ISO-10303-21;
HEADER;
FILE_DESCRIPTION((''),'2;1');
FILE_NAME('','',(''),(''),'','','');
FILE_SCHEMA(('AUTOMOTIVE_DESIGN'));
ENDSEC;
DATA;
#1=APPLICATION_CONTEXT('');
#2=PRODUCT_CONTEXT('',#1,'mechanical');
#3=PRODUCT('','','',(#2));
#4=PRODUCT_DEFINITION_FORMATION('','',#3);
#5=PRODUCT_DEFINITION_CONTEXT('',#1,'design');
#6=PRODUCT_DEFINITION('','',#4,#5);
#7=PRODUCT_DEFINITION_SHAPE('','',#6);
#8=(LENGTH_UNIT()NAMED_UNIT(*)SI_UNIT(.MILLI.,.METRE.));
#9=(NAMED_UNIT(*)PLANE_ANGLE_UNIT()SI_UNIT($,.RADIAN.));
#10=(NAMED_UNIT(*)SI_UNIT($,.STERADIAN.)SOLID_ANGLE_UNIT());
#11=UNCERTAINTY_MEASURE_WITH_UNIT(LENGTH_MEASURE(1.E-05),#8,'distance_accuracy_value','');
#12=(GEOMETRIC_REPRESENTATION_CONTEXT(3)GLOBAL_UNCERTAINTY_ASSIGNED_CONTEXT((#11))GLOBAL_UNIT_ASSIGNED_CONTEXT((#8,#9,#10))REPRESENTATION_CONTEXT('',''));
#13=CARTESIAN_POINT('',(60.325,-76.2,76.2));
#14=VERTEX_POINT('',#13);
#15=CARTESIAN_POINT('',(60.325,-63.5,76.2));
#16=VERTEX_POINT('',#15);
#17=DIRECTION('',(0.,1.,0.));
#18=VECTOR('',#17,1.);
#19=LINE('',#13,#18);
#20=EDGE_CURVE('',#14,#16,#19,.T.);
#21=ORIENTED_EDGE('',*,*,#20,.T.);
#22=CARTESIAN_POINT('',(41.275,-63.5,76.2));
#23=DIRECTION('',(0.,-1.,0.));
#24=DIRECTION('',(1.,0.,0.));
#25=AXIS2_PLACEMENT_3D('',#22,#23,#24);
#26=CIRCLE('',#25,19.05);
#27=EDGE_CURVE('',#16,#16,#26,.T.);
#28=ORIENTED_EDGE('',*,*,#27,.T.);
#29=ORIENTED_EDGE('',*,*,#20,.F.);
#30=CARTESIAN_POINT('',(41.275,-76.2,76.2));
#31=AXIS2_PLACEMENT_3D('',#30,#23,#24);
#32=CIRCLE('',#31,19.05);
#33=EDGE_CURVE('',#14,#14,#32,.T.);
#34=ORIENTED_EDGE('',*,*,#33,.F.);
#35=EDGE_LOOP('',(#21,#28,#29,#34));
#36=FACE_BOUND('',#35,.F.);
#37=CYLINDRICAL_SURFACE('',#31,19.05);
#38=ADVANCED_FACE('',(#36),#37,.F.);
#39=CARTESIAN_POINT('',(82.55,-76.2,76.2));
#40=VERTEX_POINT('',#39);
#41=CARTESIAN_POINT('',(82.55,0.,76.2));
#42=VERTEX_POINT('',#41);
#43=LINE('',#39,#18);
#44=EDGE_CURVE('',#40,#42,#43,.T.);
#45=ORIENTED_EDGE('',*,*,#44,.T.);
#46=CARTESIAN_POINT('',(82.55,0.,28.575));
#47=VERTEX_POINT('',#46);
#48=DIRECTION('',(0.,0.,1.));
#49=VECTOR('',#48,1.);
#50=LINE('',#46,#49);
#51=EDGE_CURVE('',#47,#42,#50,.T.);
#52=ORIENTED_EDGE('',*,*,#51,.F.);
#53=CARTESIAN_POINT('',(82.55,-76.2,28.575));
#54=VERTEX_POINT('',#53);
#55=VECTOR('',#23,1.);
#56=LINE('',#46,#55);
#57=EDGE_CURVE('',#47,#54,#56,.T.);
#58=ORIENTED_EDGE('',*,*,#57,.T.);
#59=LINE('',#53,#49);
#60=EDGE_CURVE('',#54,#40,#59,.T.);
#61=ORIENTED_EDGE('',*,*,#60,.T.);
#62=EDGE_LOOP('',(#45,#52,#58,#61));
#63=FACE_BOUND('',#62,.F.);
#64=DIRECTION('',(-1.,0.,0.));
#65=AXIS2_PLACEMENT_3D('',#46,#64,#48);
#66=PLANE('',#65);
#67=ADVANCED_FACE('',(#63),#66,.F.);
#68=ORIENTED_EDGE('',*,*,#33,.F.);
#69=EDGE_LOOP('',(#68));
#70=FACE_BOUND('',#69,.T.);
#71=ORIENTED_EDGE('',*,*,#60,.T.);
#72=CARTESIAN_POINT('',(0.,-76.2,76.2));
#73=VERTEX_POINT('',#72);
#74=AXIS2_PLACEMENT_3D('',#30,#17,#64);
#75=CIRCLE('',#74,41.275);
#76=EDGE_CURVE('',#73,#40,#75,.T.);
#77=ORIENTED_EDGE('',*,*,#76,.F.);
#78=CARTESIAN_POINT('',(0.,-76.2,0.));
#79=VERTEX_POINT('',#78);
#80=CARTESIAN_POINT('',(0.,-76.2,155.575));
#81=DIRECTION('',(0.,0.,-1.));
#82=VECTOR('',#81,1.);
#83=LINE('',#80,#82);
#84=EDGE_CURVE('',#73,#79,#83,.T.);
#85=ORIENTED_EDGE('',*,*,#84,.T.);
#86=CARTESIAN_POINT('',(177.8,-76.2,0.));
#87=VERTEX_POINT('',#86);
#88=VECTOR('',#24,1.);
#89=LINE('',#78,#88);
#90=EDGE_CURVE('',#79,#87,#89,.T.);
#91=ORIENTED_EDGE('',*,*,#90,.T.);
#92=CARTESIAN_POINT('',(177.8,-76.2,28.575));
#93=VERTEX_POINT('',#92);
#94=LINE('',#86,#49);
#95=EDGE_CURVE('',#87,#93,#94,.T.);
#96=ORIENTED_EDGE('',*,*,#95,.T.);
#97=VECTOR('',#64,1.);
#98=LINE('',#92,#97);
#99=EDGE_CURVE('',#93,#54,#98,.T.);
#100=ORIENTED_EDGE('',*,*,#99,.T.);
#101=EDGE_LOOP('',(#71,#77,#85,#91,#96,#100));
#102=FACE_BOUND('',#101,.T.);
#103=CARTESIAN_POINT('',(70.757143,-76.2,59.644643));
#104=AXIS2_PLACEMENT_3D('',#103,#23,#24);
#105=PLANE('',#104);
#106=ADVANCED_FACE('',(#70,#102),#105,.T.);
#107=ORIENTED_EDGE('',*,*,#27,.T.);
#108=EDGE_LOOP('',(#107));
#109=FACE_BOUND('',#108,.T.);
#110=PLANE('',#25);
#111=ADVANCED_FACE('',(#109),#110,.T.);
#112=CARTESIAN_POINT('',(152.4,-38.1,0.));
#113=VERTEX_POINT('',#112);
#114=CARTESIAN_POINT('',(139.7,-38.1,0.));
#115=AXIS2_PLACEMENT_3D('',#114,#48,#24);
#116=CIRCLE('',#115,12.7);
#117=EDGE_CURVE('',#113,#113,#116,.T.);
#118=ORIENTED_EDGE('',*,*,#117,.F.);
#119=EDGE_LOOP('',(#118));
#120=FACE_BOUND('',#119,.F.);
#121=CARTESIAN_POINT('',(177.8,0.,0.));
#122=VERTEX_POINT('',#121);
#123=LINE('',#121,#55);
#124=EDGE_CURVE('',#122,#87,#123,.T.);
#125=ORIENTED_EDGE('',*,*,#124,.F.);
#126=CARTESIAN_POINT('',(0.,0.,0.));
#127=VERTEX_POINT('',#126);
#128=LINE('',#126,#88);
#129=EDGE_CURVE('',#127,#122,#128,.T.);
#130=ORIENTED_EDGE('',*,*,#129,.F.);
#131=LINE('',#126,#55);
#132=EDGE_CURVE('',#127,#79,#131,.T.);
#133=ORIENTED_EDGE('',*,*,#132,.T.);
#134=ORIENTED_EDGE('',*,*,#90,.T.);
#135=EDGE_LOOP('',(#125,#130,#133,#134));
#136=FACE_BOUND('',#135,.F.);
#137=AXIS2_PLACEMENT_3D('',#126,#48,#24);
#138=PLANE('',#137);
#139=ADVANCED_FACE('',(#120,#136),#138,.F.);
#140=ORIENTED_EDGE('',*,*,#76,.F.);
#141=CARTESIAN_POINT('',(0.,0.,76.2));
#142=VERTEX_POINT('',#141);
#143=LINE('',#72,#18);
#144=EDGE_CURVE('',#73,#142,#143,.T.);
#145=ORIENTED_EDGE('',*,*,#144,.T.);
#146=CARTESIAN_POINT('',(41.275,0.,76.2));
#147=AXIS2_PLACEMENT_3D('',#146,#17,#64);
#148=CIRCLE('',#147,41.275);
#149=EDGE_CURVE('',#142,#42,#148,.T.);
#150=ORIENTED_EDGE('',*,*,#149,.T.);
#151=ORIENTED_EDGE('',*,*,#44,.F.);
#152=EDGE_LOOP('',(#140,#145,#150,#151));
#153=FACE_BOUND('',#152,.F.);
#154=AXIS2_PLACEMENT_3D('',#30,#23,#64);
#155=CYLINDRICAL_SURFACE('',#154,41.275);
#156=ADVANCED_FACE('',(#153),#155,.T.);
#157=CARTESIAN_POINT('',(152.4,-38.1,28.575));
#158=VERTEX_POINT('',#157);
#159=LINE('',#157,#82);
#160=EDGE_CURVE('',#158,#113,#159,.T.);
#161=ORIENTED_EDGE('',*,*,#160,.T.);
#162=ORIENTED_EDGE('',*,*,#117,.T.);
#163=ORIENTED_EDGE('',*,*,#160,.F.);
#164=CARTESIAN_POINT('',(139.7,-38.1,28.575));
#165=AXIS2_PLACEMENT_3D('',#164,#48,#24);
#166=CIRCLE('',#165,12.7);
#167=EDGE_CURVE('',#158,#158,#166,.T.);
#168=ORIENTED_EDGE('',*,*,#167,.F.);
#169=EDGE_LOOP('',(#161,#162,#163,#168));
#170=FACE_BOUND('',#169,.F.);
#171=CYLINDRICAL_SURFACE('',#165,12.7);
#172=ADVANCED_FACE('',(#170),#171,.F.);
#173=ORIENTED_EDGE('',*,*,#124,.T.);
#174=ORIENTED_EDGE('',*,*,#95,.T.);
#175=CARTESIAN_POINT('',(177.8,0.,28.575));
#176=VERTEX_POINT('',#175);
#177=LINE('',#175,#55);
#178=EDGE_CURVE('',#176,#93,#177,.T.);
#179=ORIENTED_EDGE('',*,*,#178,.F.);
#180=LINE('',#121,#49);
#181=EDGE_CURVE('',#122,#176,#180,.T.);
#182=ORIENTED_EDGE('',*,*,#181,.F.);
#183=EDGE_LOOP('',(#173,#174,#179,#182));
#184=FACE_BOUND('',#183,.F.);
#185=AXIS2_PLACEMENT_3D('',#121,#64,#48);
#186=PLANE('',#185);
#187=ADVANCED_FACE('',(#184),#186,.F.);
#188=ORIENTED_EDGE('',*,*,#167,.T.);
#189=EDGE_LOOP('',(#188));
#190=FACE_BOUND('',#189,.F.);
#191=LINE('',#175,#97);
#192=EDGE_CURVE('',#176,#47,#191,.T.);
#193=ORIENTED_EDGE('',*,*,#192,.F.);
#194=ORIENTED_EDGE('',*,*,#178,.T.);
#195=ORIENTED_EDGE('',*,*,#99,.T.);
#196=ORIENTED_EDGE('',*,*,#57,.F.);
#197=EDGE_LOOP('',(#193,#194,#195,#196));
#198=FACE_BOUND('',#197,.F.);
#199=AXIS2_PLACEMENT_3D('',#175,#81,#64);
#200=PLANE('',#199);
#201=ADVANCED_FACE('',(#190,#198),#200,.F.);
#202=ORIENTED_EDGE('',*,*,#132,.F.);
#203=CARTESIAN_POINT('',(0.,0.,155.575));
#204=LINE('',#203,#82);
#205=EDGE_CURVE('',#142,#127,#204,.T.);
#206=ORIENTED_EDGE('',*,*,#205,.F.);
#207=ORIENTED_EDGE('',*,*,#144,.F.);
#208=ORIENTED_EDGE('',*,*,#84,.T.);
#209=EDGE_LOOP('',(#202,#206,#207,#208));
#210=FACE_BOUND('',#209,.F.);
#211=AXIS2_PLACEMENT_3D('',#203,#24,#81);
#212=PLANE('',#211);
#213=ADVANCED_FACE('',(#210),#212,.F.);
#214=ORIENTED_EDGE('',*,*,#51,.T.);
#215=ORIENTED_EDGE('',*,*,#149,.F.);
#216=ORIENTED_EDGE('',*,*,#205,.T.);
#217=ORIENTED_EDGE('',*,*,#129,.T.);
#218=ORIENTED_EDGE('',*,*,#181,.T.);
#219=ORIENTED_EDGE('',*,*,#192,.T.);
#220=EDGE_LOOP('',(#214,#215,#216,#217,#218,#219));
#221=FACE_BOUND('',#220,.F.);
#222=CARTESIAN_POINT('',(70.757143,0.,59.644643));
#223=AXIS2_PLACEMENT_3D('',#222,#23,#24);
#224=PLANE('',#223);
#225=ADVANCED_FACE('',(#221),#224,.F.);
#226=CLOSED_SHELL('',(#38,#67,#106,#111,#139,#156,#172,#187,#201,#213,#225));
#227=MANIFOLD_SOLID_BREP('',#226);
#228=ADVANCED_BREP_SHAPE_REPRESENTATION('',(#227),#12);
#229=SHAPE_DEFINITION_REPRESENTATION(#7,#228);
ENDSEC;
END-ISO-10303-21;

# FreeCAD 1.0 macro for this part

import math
import FreeCAD as App
import Part
import Sketcher
from FreeCAD import Vector
Q = App.Units.Quantity

doc = App.newDocument("Part")
body = doc.addObject("PartDesign::Body", "Body")

# Sketch on XZ plane
sketch1 = body.newObject("Sketcher::SketchObject", "Sketch")
sketch1.AttachmentSupport = (doc.getObject("XZ_Plane"), [""])
sketch1.MapMode = "FlatFace"
sketch1.addGeometry([
    Part.LineSegment(Vector(0, 156, 0), Vector(0, 0, 0)),  # 0
    Part.LineSegment(Vector(0, 0, 0), Vector(178, 0, 0)),  # 1
    Part.LineSegment(Vector(178, 0, 0), Vector(178, 29, 0)),  # 2
    Part.LineSegment(Vector(178, 29, 0), Vector(83, 29, 0)),  # 3
    Part.LineSegment(Vector(83, 29, 0), Vector(83, 156, 0)),  # 4
    Part.LineSegment(Vector(83, 156, 0), Vector(0, 156, 0)),  # 5
], False)
sketch1.addConstraint([
    Sketcher.Constraint("Coincident", 0, 2, 1, 1),
    Sketcher.Constraint("Coincident", 1, 2, 2, 1),
    Sketcher.Constraint("Coincident", 2, 2, 3, 1),
    Sketcher.Constraint("Coincident", 3, 2, 4, 1),
    Sketcher.Constraint("Coincident", 4, 2, 5, 1),
    Sketcher.Constraint("Coincident", 5, 2, 0, 1),
    Sketcher.Constraint("Vertical", 0),
    Sketcher.Constraint("Horizontal", 1),
    Sketcher.Constraint("Vertical", 2),
    Sketcher.Constraint("Horizontal", 3),
    Sketcher.Constraint("Vertical", 4),
    Sketcher.Constraint("Horizontal", 5),
    Sketcher.Constraint("Coincident", 0, 2, -1, 1),
    Sketcher.Constraint("DistanceX", 1, 1, 1, 2, Q("7 in")),
    Sketcher.Constraint("DistanceY", 4, 1, 4, 2, Q("5 in")),
    Sketcher.Constraint("DistanceX", 3, 2, 3, 1, Q("3.75 in")),
    Sketcher.Constraint("DistanceY", 0, 2, 0, 1, Q("6.125 in")),
])
pad1 = body.newObject("PartDesign::Pad", "Pad")
pad1.Profile = sketch1
pad1.Length = Q("3 in")

# Sketch on XZ plane
sketch2 = body.newObject("Sketcher::SketchObject", "Sketch001")
sketch2.AttachmentSupport = (doc.getObject("XZ_Plane"), [""])
sketch2.MapMode = "FlatFace"
sketch2.AttachmentOffset = App.Placement(Vector(0, 0, 3 * 25.4), App.Rotation())
sketch2.addGeometry(Part.Circle(Vector(41, 76, 0), Vector(0, 0, 1), 19), False)
sketch2.addConstraint([
    Sketcher.Constraint("Diameter", 0, Q("1.5 in")),
    Sketcher.Constraint("DistanceY", -1, 1, 0, 3, Q("3 in")),
    Sketcher.Constraint("DistanceX", -1, 1, 0, 3, Q("1.625 in")),
])
pocket1 = body.newObject("PartDesign::Pocket", "Pocket")
pocket1.Profile = sketch2
pocket1.Length = Q("0.5 in")

# Sketch on XZ plane
sketch3 = body.newObject("Sketcher::SketchObject", "Sketch002")
sketch3.AttachmentSupport = (doc.getObject("XZ_Plane"), [""])
sketch3.MapMode = "FlatFace"
sketch3.AttachmentOffset = App.Placement(Vector(0, 0, 3 * 25.4), App.Rotation())
sketch3.addGeometry([
    Part.LineSegment(Vector(0, 156, 0), Vector(0, 76, 0)),
    Part.ArcOfCircle(Part.Circle(Vector(41, 76, 0), Vector(0, 0, 1), 41), math.radians(0), math.radians(180)),
    Part.LineSegment(Vector(83, 76, 0), Vector(83, 156, 0)),
    Part.LineSegment(Vector(83, 156, 0), Vector(0, 156, 0)),
], False)
sketch3.addConstraint([
    Sketcher.Constraint("Tangent", 0, 2, 1, 2),
    Sketcher.Constraint("Tangent", 1, 1, 2, 1),
    Sketcher.Constraint("Coincident", 2, 2, 3, 1),
    Sketcher.Constraint("Coincident", 3, 2, 0, 1),
    Sketcher.Constraint("Vertical", 0),
    Sketcher.Constraint("Vertical", 2),
    Sketcher.Constraint("Horizontal", 3),
    Sketcher.Constraint("PointOnObject", 0, 2, -2),
    Sketcher.Constraint("DistanceY", -1, 1, 1, 3, Q("3 in")),
    Sketcher.Constraint("Radius", 1, Q("1.625 in")),
    Sketcher.Constraint("DistanceY", 0, 2, 0, 1, Q("3.125 in")),
])
pocket2 = body.newObject("PartDesign::Pocket", "Pocket001")
pocket2.Profile = sketch3
pocket2.Length = Q("3 in")

# Sketch on XY plane
sketch4 = body.newObject("Sketcher::SketchObject", "Sketch003")
sketch4.AttachmentSupport = (doc.getObject("XY_Plane"), [""])
sketch4.MapMode = "FlatFace"
sketch4.AttachmentOffset = App.Placement(Vector(0, 0, 1.125 * 25.4), App.Rotation())
sketch4.addGeometry(Part.Circle(Vector(140, -38, 0), Vector(0, 0, 1), 13), False)
sketch4.addConstraint([
    Sketcher.Constraint("Diameter", 0, Q("1 in")),
    Sketcher.Constraint("DistanceX", -1, 1, 0, 3, Q("5.5 in")),
    Sketcher.Constraint("DistanceY", 0, 3, -1, 1, Q("1.5 in")),
])
pocket3 = body.newObject("PartDesign::Pocket", "Pocket002")
pocket3.Profile = sketch4
pocket3.Length = Q("999 in")

doc.recompute()
